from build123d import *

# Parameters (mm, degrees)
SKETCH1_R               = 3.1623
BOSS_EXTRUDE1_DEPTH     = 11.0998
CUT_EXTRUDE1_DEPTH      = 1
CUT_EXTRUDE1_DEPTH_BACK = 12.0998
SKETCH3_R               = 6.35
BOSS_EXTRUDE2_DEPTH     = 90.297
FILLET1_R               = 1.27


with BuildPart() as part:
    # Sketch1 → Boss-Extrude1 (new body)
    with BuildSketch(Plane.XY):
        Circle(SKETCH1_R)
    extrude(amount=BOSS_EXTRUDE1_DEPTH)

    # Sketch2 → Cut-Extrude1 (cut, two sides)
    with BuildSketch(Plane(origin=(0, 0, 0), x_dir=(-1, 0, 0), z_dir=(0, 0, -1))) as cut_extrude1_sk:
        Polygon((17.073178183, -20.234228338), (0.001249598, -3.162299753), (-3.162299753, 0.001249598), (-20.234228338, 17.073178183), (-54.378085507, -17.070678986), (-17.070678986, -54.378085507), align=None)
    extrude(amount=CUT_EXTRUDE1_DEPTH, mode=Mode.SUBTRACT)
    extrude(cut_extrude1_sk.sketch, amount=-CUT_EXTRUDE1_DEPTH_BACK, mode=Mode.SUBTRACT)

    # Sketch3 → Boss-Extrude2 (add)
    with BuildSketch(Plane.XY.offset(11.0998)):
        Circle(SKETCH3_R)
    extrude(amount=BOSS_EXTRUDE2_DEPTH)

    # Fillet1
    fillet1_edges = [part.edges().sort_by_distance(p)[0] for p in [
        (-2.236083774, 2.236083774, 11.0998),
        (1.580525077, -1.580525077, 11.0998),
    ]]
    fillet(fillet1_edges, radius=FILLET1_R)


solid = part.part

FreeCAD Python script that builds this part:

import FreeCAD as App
import Part
import Sketcher
from FreeCAD import Vector
Q = App.Units.Quantity


def edges_at(feature, points):
    """Names of the edges that pass closest to the given points."""
    edges = feature.Shape.Edges
    near = lambda p: min(range(len(edges)), key=lambda i: edges[i].distToShape(Part.Vertex(*p))[0])
    return sorted({f"Edge{near(p) + 1}" for p in points})

doc = App.newDocument("Part")
body = doc.addObject("PartDesign::Body", "Body")

sketch1 = body.newObject("Sketcher::SketchObject", "Sketch")
sketch1.AttachmentSupport = (doc.getObject("XY_Plane"), [""])
sketch1.MapMode = "FlatFace"
sketch1.addGeometry(Part.Circle(Vector(0, 0, 0), Vector(0, 0, 1), 3.2), False)
sketch1.addConstraint([
    Sketcher.Constraint("Coincident", 0, 3, -1, 1),
    Sketcher.Constraint("Diameter", 0, Q("0.249 in")),
])
pad1 = body.newObject("PartDesign::Pad", "Pad")
pad1.Profile = sketch1
pad1.Length = Q("0.437 in")

sketch2 = body.newObject("Sketcher::SketchObject", "Sketch001")
sketch2.AttachmentSupport = (doc.getObject("XY_Plane"), [""])
sketch2.MapMode = "FlatFace"
sketch2.addGeometry([
    Part.LineSegment(Vector(-17, -20, 0), Vector(20, 17, 0)),
    Part.LineSegment(Vector(20, 17, 0), Vector(54, -17, 0)),
    Part.LineSegment(Vector(54, -17, 0), Vector(17, -54, 0)),
    Part.LineSegment(Vector(17, -54, 0), Vector(-17, -20, 0)),
], False)
sketch2.addConstraint([
    Sketcher.Constraint("Coincident", 0, 2, 1, 1),
    Sketcher.Constraint("Coincident", 1, 2, 2, 1),
    Sketcher.Constraint("Coincident", 2, 2, 3, 1),
    Sketcher.Constraint("Coincident", 3, 2, 0, 1),
    Sketcher.Constraint("Perpendicular", 0, 1),
    Sketcher.Constraint("Perpendicular", 1, 2),
    Sketcher.Constraint("Perpendicular", 2, 3),
    Sketcher.Constraint("Angle", 0, Q("45 deg")),
    Sketcher.Constraint("Distance", 0, Q("52.76064 mm")),
    Sketcher.Constraint("DistanceX", -1, 1, 0, 2, Q("20.234228 mm")),
    Sketcher.Constraint("DistanceY", -1, 1, 0, 2, Q("17.073178 mm")),
    Sketcher.Constraint("DistanceY", 1, 2, -1, 1, Q("17.070679 mm")),
])
pocket1 = body.newObject("PartDesign::Pocket", "Pocket")
pocket1.Profile = sketch2
pocket1.Type = "ThroughAll"
pocket1.Midplane = True

sketch3 = body.newObject("Sketcher::SketchObject", "Sketch002")
sketch3.AttachmentSupport = (doc.getObject("XY_Plane"), [""])
sketch3.MapMode = "FlatFace"
sketch3.AttachmentOffset = App.Placement(Vector(0, 0, 0.437 * 25.4), App.Rotation())
sketch3.addGeometry(Part.Circle(Vector(0, 0, 0), Vector(0, 0, 1), 6), False)
sketch3.addConstraint([
    Sketcher.Constraint("Coincident", 0, 3, -1, 1),
    Sketcher.Constraint("Diameter", 0, Q("0.5 in")),
])
pad2 = body.newObject("PartDesign::Pad", "Pad001")
pad2.Profile = sketch3
pad2.Length = Q("3.555 in")
doc.recompute()

fillet = body.newObject("PartDesign::Fillet", "Fillet")
fillet.Base = (pad2, edges_at(pad2, [(-2.236, 2.236, 11.1), (1.581, -1.581, 11.1)]))
fillet.Radius = Q("0.05 in")

doc.recompute()
